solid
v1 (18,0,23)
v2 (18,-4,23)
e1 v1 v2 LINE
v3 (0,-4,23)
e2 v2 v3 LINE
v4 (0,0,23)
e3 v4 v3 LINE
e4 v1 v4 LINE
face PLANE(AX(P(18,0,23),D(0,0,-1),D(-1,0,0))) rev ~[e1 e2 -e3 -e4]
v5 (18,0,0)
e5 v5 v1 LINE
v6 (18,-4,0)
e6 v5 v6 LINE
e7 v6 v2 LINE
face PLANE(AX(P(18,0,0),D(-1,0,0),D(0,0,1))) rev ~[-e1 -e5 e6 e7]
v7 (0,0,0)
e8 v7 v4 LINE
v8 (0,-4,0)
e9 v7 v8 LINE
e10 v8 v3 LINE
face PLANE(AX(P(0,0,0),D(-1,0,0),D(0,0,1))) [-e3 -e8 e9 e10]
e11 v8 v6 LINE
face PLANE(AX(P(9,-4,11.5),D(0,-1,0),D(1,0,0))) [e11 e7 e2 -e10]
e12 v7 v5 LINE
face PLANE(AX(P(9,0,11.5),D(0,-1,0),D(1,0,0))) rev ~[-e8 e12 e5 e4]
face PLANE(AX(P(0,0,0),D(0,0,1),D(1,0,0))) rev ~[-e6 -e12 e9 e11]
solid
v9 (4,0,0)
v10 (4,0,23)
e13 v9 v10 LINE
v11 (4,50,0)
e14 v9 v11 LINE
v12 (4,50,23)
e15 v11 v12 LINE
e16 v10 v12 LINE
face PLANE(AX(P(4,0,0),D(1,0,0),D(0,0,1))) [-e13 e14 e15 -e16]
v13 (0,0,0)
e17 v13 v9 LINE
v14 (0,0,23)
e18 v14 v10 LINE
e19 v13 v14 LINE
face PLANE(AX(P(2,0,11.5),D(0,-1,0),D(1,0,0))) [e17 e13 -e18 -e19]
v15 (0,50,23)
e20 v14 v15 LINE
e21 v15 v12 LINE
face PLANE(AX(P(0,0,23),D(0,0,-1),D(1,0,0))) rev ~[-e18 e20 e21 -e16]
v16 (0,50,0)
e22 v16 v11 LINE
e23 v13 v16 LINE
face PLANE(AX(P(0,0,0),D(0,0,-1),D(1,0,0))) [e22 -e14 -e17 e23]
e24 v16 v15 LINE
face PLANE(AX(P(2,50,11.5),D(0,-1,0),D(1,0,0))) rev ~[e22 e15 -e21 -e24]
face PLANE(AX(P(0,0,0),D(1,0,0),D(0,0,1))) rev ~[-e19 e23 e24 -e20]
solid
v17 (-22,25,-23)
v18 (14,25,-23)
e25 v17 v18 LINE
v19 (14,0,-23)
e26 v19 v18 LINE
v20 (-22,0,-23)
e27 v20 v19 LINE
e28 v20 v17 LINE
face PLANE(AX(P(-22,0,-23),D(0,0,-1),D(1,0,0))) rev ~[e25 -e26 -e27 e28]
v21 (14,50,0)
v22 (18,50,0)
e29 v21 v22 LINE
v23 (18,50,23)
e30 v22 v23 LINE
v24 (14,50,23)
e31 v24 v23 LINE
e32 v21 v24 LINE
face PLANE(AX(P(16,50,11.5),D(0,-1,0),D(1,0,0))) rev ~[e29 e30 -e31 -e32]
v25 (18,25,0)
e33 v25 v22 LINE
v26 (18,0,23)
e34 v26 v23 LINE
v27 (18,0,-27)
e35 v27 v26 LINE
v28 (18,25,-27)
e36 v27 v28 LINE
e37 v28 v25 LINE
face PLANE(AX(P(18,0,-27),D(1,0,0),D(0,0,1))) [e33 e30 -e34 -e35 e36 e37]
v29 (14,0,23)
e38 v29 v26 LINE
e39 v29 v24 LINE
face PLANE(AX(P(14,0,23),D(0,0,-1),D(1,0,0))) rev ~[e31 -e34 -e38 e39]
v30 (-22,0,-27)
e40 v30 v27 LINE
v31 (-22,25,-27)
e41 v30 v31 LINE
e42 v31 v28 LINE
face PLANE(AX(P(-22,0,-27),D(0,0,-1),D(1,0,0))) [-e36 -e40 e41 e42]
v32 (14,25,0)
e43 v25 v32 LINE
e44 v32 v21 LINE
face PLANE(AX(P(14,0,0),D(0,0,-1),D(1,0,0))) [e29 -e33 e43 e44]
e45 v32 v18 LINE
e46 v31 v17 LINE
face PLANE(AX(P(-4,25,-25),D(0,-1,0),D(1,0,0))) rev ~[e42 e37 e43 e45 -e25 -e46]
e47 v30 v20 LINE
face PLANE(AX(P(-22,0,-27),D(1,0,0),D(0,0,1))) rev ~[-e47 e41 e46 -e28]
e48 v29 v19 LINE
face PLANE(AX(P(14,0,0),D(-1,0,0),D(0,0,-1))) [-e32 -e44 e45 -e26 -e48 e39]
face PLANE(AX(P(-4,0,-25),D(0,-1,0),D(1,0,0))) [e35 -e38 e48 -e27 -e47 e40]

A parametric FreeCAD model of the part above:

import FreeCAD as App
import Part
import Sketcher
Q = App.Units.Quantity


def add_polygon(sketch, points):
    """Adds a closed chain of lines whose ends are joined by coincident constraints."""
    first, n = sketch.GeometryCount, len(points)
    for a, b in zip(points, points[1:] + points[:1]):
        sketch.addGeometry(Part.LineSegment(App.Vector(*a, 0), App.Vector(*b, 0)), False)
    for i in range(n):
        sketch.addConstraint(Sketcher.Constraint("Coincident", first + i, 2, first + (i + 1) % n, 1))

doc = App.newDocument("Part")
body = doc.addObject("PartDesign::Body", "Body")
body.AllowCompound = True

# Sketch on XZ plane
sketch1 = body.newObject("Sketcher::SketchObject", "Sketch")
sketch1.AttachmentSupport = (doc.getObject("XZ_Plane"), [""])
sketch1.MapMode = "FlatFace"
add_polygon(sketch1, [(0, 23), (0, 0), (4, 0), (4, 23)])  # lines 0-3
add_polygon(sketch1, [(14, 23), (14, 0), (18, 0), (18, 23)])  # lines 4-7
sketch1.addConstraint([
    Sketcher.Constraint("Vertical", 0),
    Sketcher.Constraint("Horizontal", 1),
    Sketcher.Constraint("Vertical", 2),
    Sketcher.Constraint("Horizontal", 3),
    Sketcher.Constraint("Vertical", 4),
    Sketcher.Constraint("Horizontal", 5),
    Sketcher.Constraint("Vertical", 6),
    Sketcher.Constraint("Horizontal", 7),
    Sketcher.Constraint("Coincident", 0, 2, -1, 1),
    Sketcher.Constraint("PointOnObject", 4, 2, -1),
    Sketcher.Constraint("Horizontal", 3, 2, 6, 2),
    Sketcher.Constraint("Equal", 3, 5),
    Sketcher.Constraint("DistanceX", 1, 1, 1, 2, Q("4 mm")),
    Sketcher.Constraint("DistanceY", 0, 2, 0, 1, Q("23 mm")),
    Sketcher.Constraint("DistanceX", -1, 1, 4, 2, Q("14 mm")),
])
pad1 = body.newObject("PartDesign::Pad", "Pad")
pad1.Profile = sketch1
pad1.Length = 50
pad1.Reversed = True

# Sketch on XZ plane
sketch2 = body.newObject("Sketcher::SketchObject", "Sketch001")
sketch2.AttachmentSupport = (doc.getObject("XZ_Plane"), [""])
sketch2.MapMode = "FlatFace"
add_polygon(sketch2, [(-22, -23), (-22, -27), (18, -27), (18, 0), (14, 0), (14, -23)])  # lines 0-5
sketch2.addConstraint([
    Sketcher.Constraint("Vertical", 0),
    Sketcher.Constraint("Horizontal", 1),
    Sketcher.Constraint("Vertical", 2),
    Sketcher.Constraint("Horizontal", 3),
    Sketcher.Constraint("Vertical", 4),
    Sketcher.Constraint("Horizontal", 5),
    Sketcher.Constraint("PointOnObject", 2, 2, -1),
    Sketcher.Constraint("Equal", 3, 0),
    Sketcher.Constraint("DistanceX", 1, 1, 1, 2, Q("40 mm")),
    Sketcher.Constraint("DistanceX", 3, 2, 3, 1, Q("4 mm")),
    Sketcher.Constraint("DistanceY", 2, 1, 2, 2, Q("27 mm")),
    Sketcher.Constraint("DistanceX", 0, 2, -1, 1, Q("22 mm")),
])
pad2 = body.newObject("PartDesign::Pad", "Pad001")
pad2.Profile = sketch2
pad2.Length = 25
pad2.Reversed = True
body2 = doc.addObject("PartDesign::Body", "Body001")

# Sketch on XZ plane
sketch3 = body2.newObject("Sketcher::SketchObject", "Sketch002")
sketch3.AttachmentSupport = (doc.getObject("XZ_Plane001"), [""])
sketch3.MapMode = "FlatFace"
add_polygon(sketch3, [(0, 23), (0, 0), (18, 0), (18, 23)])  # lines 0-3
sketch3.addConstraint([
    Sketcher.Constraint("Vertical", 0),
    Sketcher.Constraint("Horizontal", 1),
    Sketcher.Constraint("Vertical", 2),
    Sketcher.Constraint("Horizontal", 3),
    Sketcher.Constraint("Coincident", 0, 2, -1, 1),
    Sketcher.Constraint("DistanceX", 1, 1, 1, 2, Q("18 mm")),
    Sketcher.Constraint("DistanceY", 0, 2, 0, 1, Q("23 mm")),
])
pad3 = body2.newObject("PartDesign::Pad", "Pad002")
pad3.Profile = sketch3
pad3.Length = 4

doc.recompute()
